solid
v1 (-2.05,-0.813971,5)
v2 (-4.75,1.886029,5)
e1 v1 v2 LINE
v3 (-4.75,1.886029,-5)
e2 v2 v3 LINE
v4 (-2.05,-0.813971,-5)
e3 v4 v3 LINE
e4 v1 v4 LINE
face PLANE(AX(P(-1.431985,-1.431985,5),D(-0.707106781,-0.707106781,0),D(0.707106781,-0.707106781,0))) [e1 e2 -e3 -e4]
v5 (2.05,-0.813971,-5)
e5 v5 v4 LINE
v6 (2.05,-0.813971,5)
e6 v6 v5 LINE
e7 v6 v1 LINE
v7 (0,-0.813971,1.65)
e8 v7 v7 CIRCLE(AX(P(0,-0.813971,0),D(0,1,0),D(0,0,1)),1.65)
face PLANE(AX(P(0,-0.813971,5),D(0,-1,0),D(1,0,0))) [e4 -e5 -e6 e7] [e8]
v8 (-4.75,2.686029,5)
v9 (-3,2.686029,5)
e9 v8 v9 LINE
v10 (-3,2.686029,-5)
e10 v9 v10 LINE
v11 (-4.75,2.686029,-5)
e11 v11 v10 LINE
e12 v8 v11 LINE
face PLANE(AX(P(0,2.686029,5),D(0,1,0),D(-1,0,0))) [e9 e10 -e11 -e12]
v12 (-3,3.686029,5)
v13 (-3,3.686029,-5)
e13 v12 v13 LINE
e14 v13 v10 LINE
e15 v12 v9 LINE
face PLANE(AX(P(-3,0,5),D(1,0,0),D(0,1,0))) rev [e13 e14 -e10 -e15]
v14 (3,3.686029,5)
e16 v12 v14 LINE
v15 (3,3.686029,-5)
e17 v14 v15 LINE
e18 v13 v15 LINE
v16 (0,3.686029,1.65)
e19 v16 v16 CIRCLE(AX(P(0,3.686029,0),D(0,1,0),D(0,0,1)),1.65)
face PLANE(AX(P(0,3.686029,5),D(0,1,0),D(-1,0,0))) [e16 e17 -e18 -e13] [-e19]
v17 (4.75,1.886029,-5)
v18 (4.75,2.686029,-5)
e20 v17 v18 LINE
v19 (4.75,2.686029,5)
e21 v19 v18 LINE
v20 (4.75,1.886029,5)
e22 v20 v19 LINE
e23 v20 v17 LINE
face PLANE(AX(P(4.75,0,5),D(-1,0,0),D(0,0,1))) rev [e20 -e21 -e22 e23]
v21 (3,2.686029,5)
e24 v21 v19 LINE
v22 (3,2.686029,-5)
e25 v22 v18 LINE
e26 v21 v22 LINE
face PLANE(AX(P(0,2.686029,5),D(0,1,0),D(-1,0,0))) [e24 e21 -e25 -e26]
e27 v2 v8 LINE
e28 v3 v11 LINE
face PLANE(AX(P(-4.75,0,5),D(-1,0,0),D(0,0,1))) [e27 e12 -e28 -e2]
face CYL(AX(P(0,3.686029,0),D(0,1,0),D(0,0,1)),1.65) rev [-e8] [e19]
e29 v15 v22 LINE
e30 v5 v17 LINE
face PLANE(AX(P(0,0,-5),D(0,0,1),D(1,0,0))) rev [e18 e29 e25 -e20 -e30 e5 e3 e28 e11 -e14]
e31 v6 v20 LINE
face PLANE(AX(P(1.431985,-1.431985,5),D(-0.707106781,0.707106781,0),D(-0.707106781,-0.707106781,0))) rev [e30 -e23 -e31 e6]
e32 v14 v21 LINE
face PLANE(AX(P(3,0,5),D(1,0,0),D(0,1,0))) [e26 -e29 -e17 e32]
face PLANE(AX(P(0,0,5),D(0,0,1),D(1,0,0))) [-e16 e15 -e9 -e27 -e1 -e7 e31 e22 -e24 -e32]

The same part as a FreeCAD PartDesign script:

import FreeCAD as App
import Part
import Sketcher


def add_polygon(sketch, points):
    """Adds a closed chain of lines whose ends are joined by coincident constraints."""
    first, n = sketch.GeometryCount, len(points)
    for a, b in zip(points, points[1:] + points[:1]):
        sketch.addGeometry(Part.LineSegment(App.Vector(*a, 0), App.Vector(*b, 0)), False)
    for i in range(n):
        sketch.addConstraint(Sketcher.Constraint("Coincident", first + i, 2, first + (i + 1) % n, 1))

doc = App.newDocument("Part")
params = doc.addObject("Spreadsheet::Sheet", "Params")
for row, (alias, value) in enumerate([
    ("sketch1_width", "6 mm"),
    ("sketch1_height", "1 mm"),
    ("sketch1_width2", "4.1 mm"),
    ("sketch1_height2", "0.8 mm"),
    ("sketch1_width3", "1.75 mm"),
    ("pad1_length", "10 mm"),
    ("sketch2_diameter", "3.3 mm"),
    ("hole_diameter", "3.3 mm"),
], start=1):
    params.set(f"A{row}", alias)
    params.set(f"B{row}", "=" + value)
    params.setAlias(f"B{row}", alias)

body = doc.addObject("PartDesign::Body", "Body")

sketch1 = body.newObject("Sketcher::SketchObject", "Sketch")
sketch1.AttachmentSupport = (doc.getObject("XY_Plane"), [""])
sketch1.MapMode = "FlatFace"
add_polygon(sketch1, [(-2, -0.8), (2, -0.8), (4.8, 1.9), (4.8, 2.7), (3, 2.7), (3, 3.7), (-3, 3.7), (-3, 2.7), (-4.8, 2.7), (-4.8, 1.9)])
sketch1.addConstraint([
    Sketcher.Constraint("Horizontal", 0),
    Sketcher.Constraint("Vertical", 2),
    Sketcher.Constraint("Horizontal", 3),
    Sketcher.Constraint("Vertical", 4),
    Sketcher.Constraint("Horizontal", 5),
    Sketcher.Constraint("Vertical", 6),
    Sketcher.Constraint("Horizontal", 7),
    Sketcher.Constraint("Vertical", 8),
    Sketcher.Constraint("Symmetric", 3, 2, 6, 2, -2),
    Sketcher.Constraint("Symmetric", 1, 2, 8, 2, -2),
    Sketcher.Constraint("Perpendicular", 1, 9),
    Sketcher.Constraint("Equal", 1, 9),
    Sketcher.Constraint("DistanceX", 5, 2, 5, 1, 6.0),
    Sketcher.Constraint("DistanceY", 4, 1, 4, 2, 1.0),
    Sketcher.Constraint("DistanceX", 0, 1, 0, 2, 4.1),
    Sketcher.Constraint("DistanceY", 2, 1, 2, 2, 0.8),
    Sketcher.Constraint("DistanceX", 3, 2, 3, 1, 1.75),
    Sketcher.Constraint("DistanceY", 0, 2, -1, 1, 0.813971),
])
sketch1.setExpression("Constraints[22]", "Params.sketch1_width")
sketch1.setExpression("Constraints[23]", "Params.sketch1_height")
sketch1.setExpression("Constraints[24]", "Params.sketch1_width2")
sketch1.setExpression("Constraints[25]", "Params.sketch1_height2")
sketch1.setExpression("Constraints[26]", "Params.sketch1_width3")
pad1 = body.newObject("PartDesign::Pad", "Pad")
pad1.Profile = sketch1
pad1.setExpression("Length", "Params.pad1_length")
pad1.Midplane = True

sketch2 = body.newObject("Sketcher::SketchObject", "Sketch001")
sketch2.AttachmentSupport = (doc.getObject("XZ_Plane"), [""])
sketch2.MapMode = "FlatFace"
sketch2.AttachmentOffset = App.Placement(App.Vector(0, 0, -3.686029), App.Rotation())
sketch2.addGeometry(Part.Circle(App.Vector(0, 0, 0), App.Vector(0, 0, 1), 1.6), False)
sketch2.addConstraint([
    Sketcher.Constraint("Coincident", 0, 3, -1, 1),
    Sketcher.Constraint("Diameter", 0, 3.3),
])
sketch2.setExpression("Constraints[1]", "Params.sketch2_diameter")
doc.recompute()
hole = body.newObject("PartDesign::Hole", "Hole")
hole.Profile = sketch2
hole.ThreadType = "None"
hole.setExpression("Diameter", "Params.hole_diameter")
hole.DepthType = "ThroughAll"
hole.Reversed = True

doc.recompute()
